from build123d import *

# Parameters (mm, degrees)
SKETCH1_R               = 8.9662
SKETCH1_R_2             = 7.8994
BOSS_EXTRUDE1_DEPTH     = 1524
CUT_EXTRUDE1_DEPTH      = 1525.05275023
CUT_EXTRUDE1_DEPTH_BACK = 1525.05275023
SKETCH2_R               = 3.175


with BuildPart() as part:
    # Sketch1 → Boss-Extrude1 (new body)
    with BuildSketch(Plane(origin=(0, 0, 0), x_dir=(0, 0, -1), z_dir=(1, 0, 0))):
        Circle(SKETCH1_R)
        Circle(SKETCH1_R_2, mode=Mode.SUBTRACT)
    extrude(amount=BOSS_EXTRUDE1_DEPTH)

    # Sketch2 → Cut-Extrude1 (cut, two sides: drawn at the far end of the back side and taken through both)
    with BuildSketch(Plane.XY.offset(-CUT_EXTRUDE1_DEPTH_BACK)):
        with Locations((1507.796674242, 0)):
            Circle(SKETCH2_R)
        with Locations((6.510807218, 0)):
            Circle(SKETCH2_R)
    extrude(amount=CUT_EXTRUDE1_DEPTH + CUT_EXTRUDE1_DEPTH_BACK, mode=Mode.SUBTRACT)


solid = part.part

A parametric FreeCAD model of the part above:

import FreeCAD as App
import Part
import Sketcher
Q = App.Units.Quantity

doc = App.newDocument("Part")
body = doc.addObject("PartDesign::Body", "Body")

sketch1 = body.newObject("Sketcher::SketchObject", "Sketch")
sketch1.AttachmentSupport = (doc.getObject("YZ_Plane"), [""])
sketch1.MapMode = "FlatFace"
sketch1.addGeometry(Part.Circle(App.Vector(0, 0, 0), App.Vector(0, 0, 1), 9), False)
sketch1.addGeometry(Part.Circle(App.Vector(0, 0, 0), App.Vector(0, 0, 1), 8), False)
sketch1.addConstraint(Sketcher.Constraint("Coincident", 0, 3, -1, 1))
sketch1.addConstraint(Sketcher.Constraint("Coincident", 1, 3, -1, 1))
sketch1.addConstraint(Sketcher.Constraint("Diameter", 0, Q("0.706 in")))
sketch1.addConstraint(Sketcher.Constraint("Diameter", 1, Q("0.622 in")))
pad1 = body.newObject("PartDesign::Pad", "Pad")
pad1.Profile = sketch1
pad1.Length = Q("60 in")

sketch2 = body.newObject("Sketcher::SketchObject", "Sketch001")
sketch2.AttachmentSupport = (doc.getObject("XY_Plane"), [""])
sketch2.MapMode = "FlatFace"
sketch2.addGeometry(Part.Circle(App.Vector(1507.8, 0, 0), App.Vector(0, 0, 1), 3.2), False)
sketch2.addGeometry(Part.Circle(App.Vector(6.5, 0, 0), App.Vector(0, 0, 1), 3.2), False)
sketch2.addConstraint(Sketcher.Constraint("Equal", 0, 1))
sketch2.addConstraint(Sketcher.Constraint("PointOnObject", 0, 3, -1))
sketch2.addConstraint(Sketcher.Constraint("PointOnObject", 1, 3, -1))
sketch2.addConstraint(Sketcher.Constraint("Diameter", 0, Q("0.25 in")))
sketch2.addConstraint(Sketcher.Constraint("DistanceX", -1, 1, 0, 3, Q("1507.796674 mm")))
sketch2.addConstraint(Sketcher.Constraint("DistanceX", -1, 1, 1, 3, Q("6.510807 mm")))
pocket1 = body.newObject("PartDesign::Pocket", "Pocket")
pocket1.Profile = sketch2
pocket1.Type = "ThroughAll"
pocket1.Midplane = True

doc.recompute()
